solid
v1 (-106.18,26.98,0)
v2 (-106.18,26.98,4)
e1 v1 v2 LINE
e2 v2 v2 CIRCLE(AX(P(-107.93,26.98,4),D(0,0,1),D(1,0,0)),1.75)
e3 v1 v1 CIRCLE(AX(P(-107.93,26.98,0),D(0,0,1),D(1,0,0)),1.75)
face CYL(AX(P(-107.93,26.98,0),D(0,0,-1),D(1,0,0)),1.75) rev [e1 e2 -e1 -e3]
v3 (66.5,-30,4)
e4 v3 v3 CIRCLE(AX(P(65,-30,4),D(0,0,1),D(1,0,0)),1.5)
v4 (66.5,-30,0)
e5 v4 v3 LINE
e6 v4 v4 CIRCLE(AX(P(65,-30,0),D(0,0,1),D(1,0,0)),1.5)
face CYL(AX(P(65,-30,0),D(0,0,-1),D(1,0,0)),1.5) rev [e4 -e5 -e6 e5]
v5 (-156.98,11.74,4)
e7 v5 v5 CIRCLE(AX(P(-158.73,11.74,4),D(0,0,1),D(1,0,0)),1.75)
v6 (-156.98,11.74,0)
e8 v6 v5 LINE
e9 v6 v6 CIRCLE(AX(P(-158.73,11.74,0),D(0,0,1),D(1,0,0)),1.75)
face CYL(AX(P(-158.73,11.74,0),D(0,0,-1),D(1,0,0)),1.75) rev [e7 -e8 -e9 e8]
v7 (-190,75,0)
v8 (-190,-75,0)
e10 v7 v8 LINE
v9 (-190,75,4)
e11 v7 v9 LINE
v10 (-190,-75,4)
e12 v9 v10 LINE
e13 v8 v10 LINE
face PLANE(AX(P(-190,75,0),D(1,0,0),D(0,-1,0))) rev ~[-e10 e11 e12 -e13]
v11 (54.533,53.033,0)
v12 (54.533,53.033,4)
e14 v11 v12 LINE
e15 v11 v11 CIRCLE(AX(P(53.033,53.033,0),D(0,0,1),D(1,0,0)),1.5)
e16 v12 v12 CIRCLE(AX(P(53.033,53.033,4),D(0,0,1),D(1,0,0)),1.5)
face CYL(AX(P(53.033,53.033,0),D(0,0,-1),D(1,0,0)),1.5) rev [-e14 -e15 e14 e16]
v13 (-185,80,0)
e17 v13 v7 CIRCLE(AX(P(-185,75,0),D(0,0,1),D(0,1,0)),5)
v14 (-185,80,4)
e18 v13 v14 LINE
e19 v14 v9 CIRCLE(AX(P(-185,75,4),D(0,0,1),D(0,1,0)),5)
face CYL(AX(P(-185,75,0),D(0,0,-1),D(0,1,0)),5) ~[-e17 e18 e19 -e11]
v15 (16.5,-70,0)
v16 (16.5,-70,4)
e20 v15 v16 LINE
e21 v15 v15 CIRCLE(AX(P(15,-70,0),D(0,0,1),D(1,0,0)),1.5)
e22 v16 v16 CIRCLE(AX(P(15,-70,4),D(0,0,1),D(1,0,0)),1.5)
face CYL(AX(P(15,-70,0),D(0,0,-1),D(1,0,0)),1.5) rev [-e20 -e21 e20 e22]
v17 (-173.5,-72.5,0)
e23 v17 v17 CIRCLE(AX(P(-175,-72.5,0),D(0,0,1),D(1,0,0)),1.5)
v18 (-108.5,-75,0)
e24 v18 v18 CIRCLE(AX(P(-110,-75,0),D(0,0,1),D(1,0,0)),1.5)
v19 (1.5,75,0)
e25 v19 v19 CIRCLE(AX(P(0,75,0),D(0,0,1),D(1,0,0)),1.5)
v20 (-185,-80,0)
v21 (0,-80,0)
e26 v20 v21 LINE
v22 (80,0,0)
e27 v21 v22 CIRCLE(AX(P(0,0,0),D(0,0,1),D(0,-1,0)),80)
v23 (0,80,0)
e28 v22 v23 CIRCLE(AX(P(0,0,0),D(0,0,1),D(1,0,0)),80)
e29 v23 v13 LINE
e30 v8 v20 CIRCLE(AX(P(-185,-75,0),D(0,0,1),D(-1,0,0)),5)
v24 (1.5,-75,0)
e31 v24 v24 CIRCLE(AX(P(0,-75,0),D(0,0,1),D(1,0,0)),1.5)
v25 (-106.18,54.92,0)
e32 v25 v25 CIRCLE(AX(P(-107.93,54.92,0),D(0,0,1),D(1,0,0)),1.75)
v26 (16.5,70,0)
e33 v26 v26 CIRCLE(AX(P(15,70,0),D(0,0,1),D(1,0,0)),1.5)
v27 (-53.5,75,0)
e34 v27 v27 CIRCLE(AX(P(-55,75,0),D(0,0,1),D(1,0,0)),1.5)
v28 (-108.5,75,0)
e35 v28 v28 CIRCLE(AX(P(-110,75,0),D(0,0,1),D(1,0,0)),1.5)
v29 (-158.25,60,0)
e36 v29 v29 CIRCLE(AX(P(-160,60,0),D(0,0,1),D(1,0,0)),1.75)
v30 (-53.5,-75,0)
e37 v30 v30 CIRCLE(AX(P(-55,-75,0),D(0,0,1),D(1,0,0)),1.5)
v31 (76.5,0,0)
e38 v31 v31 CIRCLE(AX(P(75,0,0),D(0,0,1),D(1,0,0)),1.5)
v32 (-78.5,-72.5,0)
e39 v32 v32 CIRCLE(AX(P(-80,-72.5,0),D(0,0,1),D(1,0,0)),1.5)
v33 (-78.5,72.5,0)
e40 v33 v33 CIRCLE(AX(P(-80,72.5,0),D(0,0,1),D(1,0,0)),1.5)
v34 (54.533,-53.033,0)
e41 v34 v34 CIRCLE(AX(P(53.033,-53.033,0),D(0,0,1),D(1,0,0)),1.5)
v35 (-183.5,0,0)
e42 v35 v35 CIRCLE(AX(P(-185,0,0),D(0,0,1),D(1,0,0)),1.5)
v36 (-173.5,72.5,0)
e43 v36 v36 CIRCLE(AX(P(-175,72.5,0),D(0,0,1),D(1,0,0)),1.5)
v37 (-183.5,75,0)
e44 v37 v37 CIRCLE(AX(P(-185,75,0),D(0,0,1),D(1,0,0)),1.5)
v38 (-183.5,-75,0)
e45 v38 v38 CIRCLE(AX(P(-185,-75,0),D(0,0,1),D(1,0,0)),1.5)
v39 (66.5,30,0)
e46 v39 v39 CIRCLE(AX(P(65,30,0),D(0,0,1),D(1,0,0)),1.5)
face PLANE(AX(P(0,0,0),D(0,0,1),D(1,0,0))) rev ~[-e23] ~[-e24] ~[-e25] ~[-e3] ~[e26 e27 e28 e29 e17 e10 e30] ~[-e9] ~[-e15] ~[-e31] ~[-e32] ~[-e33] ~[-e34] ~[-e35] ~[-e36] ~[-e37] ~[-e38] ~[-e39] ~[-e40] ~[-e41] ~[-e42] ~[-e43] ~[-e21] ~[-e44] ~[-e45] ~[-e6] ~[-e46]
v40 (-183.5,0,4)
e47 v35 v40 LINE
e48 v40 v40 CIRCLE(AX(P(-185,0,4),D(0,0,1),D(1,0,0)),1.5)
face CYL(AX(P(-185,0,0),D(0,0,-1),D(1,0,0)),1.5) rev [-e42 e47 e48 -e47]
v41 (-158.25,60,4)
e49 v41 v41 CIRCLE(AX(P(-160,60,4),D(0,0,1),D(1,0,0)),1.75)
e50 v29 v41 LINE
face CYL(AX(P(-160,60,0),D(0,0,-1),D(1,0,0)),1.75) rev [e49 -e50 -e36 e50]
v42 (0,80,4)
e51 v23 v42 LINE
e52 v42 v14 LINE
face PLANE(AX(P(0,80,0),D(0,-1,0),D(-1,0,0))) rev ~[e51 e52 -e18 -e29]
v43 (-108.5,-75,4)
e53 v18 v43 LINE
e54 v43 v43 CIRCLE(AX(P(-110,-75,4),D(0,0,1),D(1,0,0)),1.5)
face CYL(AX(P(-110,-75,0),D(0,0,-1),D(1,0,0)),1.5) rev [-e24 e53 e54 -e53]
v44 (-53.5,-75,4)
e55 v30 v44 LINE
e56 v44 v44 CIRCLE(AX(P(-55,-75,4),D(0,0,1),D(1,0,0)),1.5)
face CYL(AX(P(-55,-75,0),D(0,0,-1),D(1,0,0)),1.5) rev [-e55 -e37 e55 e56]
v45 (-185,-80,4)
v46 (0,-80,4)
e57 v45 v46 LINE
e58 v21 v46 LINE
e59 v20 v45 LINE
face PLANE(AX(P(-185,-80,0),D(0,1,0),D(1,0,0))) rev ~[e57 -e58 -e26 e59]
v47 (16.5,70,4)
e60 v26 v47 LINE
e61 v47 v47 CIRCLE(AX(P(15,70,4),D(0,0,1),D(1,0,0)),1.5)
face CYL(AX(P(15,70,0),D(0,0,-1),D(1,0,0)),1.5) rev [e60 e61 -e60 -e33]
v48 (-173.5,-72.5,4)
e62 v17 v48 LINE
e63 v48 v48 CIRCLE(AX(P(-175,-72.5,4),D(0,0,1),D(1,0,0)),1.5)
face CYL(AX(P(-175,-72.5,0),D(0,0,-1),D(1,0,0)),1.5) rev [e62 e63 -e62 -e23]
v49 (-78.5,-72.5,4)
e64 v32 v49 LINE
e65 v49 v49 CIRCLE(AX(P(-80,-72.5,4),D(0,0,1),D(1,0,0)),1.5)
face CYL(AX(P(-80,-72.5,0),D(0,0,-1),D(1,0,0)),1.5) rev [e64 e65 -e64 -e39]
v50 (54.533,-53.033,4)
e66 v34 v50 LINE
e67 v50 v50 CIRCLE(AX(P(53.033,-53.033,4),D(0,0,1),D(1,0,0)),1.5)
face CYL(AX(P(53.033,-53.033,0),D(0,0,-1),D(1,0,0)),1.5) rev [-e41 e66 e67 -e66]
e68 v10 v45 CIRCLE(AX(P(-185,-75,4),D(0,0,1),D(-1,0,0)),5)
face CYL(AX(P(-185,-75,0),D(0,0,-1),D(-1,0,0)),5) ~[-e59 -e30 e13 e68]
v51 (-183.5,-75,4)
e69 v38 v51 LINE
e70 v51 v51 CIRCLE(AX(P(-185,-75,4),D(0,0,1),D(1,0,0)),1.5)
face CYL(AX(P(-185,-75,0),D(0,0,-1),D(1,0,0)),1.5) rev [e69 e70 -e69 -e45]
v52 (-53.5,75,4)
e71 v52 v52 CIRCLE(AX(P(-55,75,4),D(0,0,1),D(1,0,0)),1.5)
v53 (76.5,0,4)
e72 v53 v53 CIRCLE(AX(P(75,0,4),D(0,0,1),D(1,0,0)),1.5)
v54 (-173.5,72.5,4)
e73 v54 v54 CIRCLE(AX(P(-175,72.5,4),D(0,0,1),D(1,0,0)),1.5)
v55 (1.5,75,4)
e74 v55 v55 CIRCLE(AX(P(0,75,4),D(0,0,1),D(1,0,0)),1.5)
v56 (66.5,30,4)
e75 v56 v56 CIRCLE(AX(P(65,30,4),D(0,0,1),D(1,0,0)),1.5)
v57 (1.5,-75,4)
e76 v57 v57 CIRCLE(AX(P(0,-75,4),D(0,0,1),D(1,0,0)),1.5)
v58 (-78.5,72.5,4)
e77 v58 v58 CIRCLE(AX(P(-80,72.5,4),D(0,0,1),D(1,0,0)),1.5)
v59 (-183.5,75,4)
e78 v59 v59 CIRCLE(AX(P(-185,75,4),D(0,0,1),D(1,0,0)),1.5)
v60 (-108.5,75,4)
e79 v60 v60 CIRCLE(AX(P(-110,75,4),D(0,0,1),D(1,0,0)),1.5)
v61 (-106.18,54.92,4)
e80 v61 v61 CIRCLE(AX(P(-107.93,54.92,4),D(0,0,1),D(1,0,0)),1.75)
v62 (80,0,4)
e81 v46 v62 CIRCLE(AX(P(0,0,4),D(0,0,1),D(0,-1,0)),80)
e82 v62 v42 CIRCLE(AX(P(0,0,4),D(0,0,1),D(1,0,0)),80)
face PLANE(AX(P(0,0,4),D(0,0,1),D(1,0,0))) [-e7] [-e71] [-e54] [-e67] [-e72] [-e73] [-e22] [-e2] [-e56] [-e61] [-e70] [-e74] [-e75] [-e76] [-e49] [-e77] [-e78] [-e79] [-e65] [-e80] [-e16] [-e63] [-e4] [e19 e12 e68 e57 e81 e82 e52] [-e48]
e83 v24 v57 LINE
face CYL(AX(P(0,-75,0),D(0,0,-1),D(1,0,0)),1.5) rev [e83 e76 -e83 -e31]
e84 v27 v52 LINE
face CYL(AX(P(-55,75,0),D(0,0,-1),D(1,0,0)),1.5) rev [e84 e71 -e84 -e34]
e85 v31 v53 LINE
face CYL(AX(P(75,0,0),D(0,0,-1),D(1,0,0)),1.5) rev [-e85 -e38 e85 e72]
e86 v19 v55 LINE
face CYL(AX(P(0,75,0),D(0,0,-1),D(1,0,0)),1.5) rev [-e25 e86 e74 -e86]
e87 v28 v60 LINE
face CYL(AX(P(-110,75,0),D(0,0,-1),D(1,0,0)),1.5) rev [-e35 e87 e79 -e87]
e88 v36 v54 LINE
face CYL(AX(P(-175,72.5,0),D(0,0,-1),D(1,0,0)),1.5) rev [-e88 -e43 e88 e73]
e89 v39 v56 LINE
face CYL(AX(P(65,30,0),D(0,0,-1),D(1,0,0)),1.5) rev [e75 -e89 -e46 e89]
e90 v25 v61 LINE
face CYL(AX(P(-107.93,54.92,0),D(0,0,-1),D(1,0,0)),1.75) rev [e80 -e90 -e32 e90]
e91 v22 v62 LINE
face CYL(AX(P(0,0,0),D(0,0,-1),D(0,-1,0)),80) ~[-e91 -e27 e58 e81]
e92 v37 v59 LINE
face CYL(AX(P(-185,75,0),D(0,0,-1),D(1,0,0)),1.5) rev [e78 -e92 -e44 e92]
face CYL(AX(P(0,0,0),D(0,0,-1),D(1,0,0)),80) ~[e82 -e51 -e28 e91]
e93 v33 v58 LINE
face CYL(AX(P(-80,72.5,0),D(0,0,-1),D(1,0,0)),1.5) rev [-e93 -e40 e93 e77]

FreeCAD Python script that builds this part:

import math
import FreeCAD as App
import Part
import Sketcher

V = App.Vector

doc = App.newDocument("Part")
body = doc.addObject("PartDesign::Body", "Body")

sketch1 = doc.addObject("Sketcher::SketchObject", "Sketch")
body.addObject(sketch1)
sketch1.AttachmentSupport = (doc.XY_Plane, [""])
sketch1.MapMode = "FlatFace"
sketch1.addGeometry(Part.ArcOfCircle(Part.Circle(V(-185, -75, 0), V(0, 0, 1), 5), math.radians(180), math.radians(270)), False)
sketch1.addGeometry(Part.LineSegment(V(-185, -80, 0), V(0, -80, 0)), False)
sketch1.addGeometry(Part.ArcOfCircle(Part.Circle(V(0, 0, 0), V(0, 0, 1), 80), math.radians(-90), math.radians(90)), False)
sketch1.addGeometry(Part.LineSegment(V(0, 80, 0), V(-185, 80, 0)), False)
sketch1.addGeometry(Part.ArcOfCircle(Part.Circle(V(-185, 75, 0), V(0, 0, 1), 5), math.radians(90), math.radians(180)), False)
sketch1.addGeometry(Part.LineSegment(V(-190, 75, 0), V(-190, -75, 0)), False)
sketch1.addGeometry(Part.Circle(V(-185, -75, 0), V(0, 0, 1), 1.5), False)
sketch1.addGeometry(Part.Circle(V(-175, -72.5, 0), V(0, 0, 1), 1.5), False)
sketch1.addGeometry(Part.Circle(V(-110, -75, 0), V(0, 0, 1), 1.5), False)
sketch1.addGeometry(Part.Circle(V(-80, -72.5, 0), V(0, 0, 1), 1.5), False)
sketch1.addGeometry(Part.Circle(V(-55, -75, 0), V(0, 0, 1), 1.5), False)
sketch1.addGeometry(Part.Circle(V(0, -75, 0), V(0, 0, 1), 1.5), False)
sketch1.addGeometry(Part.Circle(V(15, -70, 0), V(0, 0, 1), 1.5), False)
sketch1.addGeometry(Part.Circle(V(53.033, -53.033, 0), V(0, 0, 1), 1.5), False)
sketch1.addGeometry(Part.Circle(V(65, -30, 0), V(0, 0, 1), 1.5), False)
sketch1.addGeometry(Part.Circle(V(-185, 0, 0), V(0, 0, 1), 1.5), False)
sketch1.addGeometry(Part.Circle(V(-158.73, 11.74, 0), V(0, 0, 1), 1.75), False)
sketch1.addGeometry(Part.Circle(V(-107.93, 26.98, 0), V(0, 0, 1), 1.75), False)
sketch1.addGeometry(Part.Circle(V(-160, 60, 0), V(0, 0, 1), 1.75), False)
sketch1.addGeometry(Part.Circle(V(-175, 72.5, 0), V(0, 0, 1), 1.5), False)
sketch1.addGeometry(Part.Circle(V(-185, 75, 0), V(0, 0, 1), 1.5), False)
sketch1.addGeometry(Part.Circle(V(-107.93, 54.92, 0), V(0, 0, 1), 1.75), False)
sketch1.addGeometry(Part.Circle(V(-110, 75, 0), V(0, 0, 1), 1.5), False)
sketch1.addGeometry(Part.Circle(V(-80, 72.5, 0), V(0, 0, 1), 1.5), False)
sketch1.addGeometry(Part.Circle(V(75, 0, 0), V(0, 0, 1), 1.5), False)
sketch1.addGeometry(Part.Circle(V(65, 30, 0), V(0, 0, 1), 1.5), False)
sketch1.addGeometry(Part.Circle(V(-55, 75, 0), V(0, 0, 1), 1.5), False)
sketch1.addGeometry(Part.Circle(V(0, 75, 0), V(0, 0, 1), 1.5), False)
sketch1.addGeometry(Part.Circle(V(53.033, 53.033, 0), V(0, 0, 1), 1.5), False)
sketch1.addGeometry(Part.Circle(V(15, 70, 0), V(0, 0, 1), 1.5), False)
sketch1.addConstraint(Sketcher.Constraint("Tangent", 0, 2, 1, 1))
sketch1.addConstraint(Sketcher.Constraint("Tangent", 1, 2, 2, 1))
sketch1.addConstraint(Sketcher.Constraint("Tangent", 2, 2, 3, 1))
sketch1.addConstraint(Sketcher.Constraint("Tangent", 3, 2, 4, 1))
sketch1.addConstraint(Sketcher.Constraint("Tangent", 4, 2, 5, 1))
sketch1.addConstraint(Sketcher.Constraint("Tangent", 5, 2, 0, 1))
sketch1.addConstraint(Sketcher.Constraint("Horizontal", 1))
sketch1.addConstraint(Sketcher.Constraint("Horizontal", 3))
sketch1.addConstraint(Sketcher.Constraint("Vertical", 5))
sketch1.addConstraint(Sketcher.Constraint("Coincident", 2, 3, -1, 1))
sketch1.addConstraint(Sketcher.Constraint("Coincident", 6, 3, 0, 3))
sketch1.addConstraint(Sketcher.Constraint("Coincident", 20, 3, 4, 3))
sketch1.addConstraint(Sketcher.Constraint("Equal", 0, 4))
sketch1.addConstraint(Sketcher.Constraint("Equal", 6, 7))
sketch1.addConstraint(Sketcher.Constraint("Equal", 7, 8))
sketch1.addConstraint(Sketcher.Constraint("Equal", 8, 9))
sketch1.addConstraint(Sketcher.Constraint("Equal", 9, 10))
sketch1.addConstraint(Sketcher.Constraint("Equal", 10, 11))
sketch1.addConstraint(Sketcher.Constraint("Equal", 11, 12))
sketch1.addConstraint(Sketcher.Constraint("Equal", 12, 13))
sketch1.addConstraint(Sketcher.Constraint("Equal", 13, 14))
sketch1.addConstraint(Sketcher.Constraint("Equal", 14, 15))
sketch1.addConstraint(Sketcher.Constraint("Equal", 16, 17))
sketch1.addConstraint(Sketcher.Constraint("Equal", 17, 18))
sketch1.addConstraint(Sketcher.Constraint("Equal", 15, 19))
sketch1.addConstraint(Sketcher.Constraint("Equal", 19, 20))
sketch1.addConstraint(Sketcher.Constraint("Equal", 18, 21))
sketch1.addConstraint(Sketcher.Constraint("Equal", 20, 22))
sketch1.addConstraint(Sketcher.Constraint("Equal", 22, 23))
sketch1.addConstraint(Sketcher.Constraint("Equal", 23, 24))
sketch1.addConstraint(Sketcher.Constraint("Equal", 24, 25))
sketch1.addConstraint(Sketcher.Constraint("Equal", 25, 26))
sketch1.addConstraint(Sketcher.Constraint("Equal", 26, 27))
sketch1.addConstraint(Sketcher.Constraint("Equal", 27, 28))
sketch1.addConstraint(Sketcher.Constraint("Equal", 28, 29))
sketch1.addConstraint(Sketcher.Constraint("Symmetric", 11, 3, 27, 3, -1, 1))
sketch1.addConstraint(Sketcher.Constraint("Symmetric", 7, 3, 19, 3, -1))
sketch1.addConstraint(Sketcher.Constraint("Symmetric", 8, 3, 22, 3, -1))
sketch1.addConstraint(Sketcher.Constraint("Symmetric", 9, 3, 23, 3, -1))
sketch1.addConstraint(Sketcher.Constraint("Symmetric", 14, 3, 25, 3, -1))
sketch1.addConstraint(Sketcher.Constraint("Symmetric", 10, 3, 26, 3, -1))
sketch1.addConstraint(Sketcher.Constraint("Symmetric", 13, 3, 28, 3, -1))
sketch1.addConstraint(Sketcher.Constraint("Symmetric", 12, 3, 29, 3, -1))
sketch1.addConstraint(Sketcher.Constraint("PointOnObject", 11, 3, -2))
sketch1.addConstraint(Sketcher.Constraint("PointOnObject", 15, 3, -1))
sketch1.addConstraint(Sketcher.Constraint("PointOnObject", 24, 3, -1))
sketch1.addConstraint(Sketcher.Constraint("Horizontal", 6, 3, 8, 3))
sketch1.addConstraint(Sketcher.Constraint("Horizontal", 7, 3, 9, 3))
sketch1.addConstraint(Sketcher.Constraint("Horizontal", 8, 3, 10, 3))
sketch1.addConstraint(Sketcher.Constraint("Horizontal", 10, 3, 11, 3))
sketch1.addConstraint(Sketcher.Constraint("Vertical", 6, 3, 15, 3))
sketch1.addConstraint(Sketcher.Constraint("Vertical", 17, 3, 21, 3))
sketch1.addConstraint(Sketcher.Constraint("Diameter", 6, 3.0))
sketch1.addConstraint(Sketcher.Constraint("Radius", 0, 5.0))
sketch1.addConstraint(Sketcher.Constraint("Radius", 2, 80.0))
sketch1.addConstraint(Sketcher.Constraint("Diameter", 16, 3.5))
sketch1.addConstraint(Sketcher.Constraint("DistanceX", 8, 3, -1, 1, 110.0))
sketch1.addConstraint(Sketcher.Constraint("DistanceX", 9, 3, -1, 1, 80.0))
sketch1.addConstraint(Sketcher.Constraint("DistanceX", 10, 3, -1, 1, 55.0))
sketch1.addConstraint(Sketcher.Constraint("DistanceX", -1, 1, 12, 3, 15.0))
sketch1.addConstraint(Sketcher.Constraint("DistanceY", 12, 3, -1, 1, 70.0))
sketch1.addConstraint(Sketcher.Constraint("DistanceX", -1, 1, 14, 3, 65.0))
sketch1.addConstraint(Sketcher.Constraint("DistanceY", 14, 3, -1, 1, 30.0))
sketch1.addConstraint(Sketcher.Constraint("DistanceX", 18, 3, -1, 1, 160.0))
sketch1.addConstraint(Sketcher.Constraint("DistanceX", -1, 1, 24, 3, 75.0))
sketch1.addConstraint(Sketcher.Constraint("DistanceX", 4, 2, -1, 1, 190.0))
sketch1.addConstraint(Sketcher.Constraint("DistanceX", 7, 3, 8, 3, 65.0))
sketch1.addConstraint(Sketcher.Constraint("DistanceY", 18, 3, 4, 3, 15.0))
sketch1.addConstraint(Sketcher.Constraint("DistanceY", 7, 3, -1, 1, 72.5))
sketch1.addConstraint(Sketcher.Constraint("DistanceX", 17, 3, -1, 1, 107.93))
sketch1.addConstraint(Sketcher.Constraint("DistanceY", 16, 3, 3, 2, 68.26))
sketch1.addConstraint(Sketcher.Constraint("DistanceX", -1, 1, 13, 3, 53.033))
sketch1.addConstraint(Sketcher.Constraint("DistanceY", 13, 3, -1, 1, 53.033))
sketch1.addConstraint(Sketcher.Constraint("DistanceX", 16, 3, 17, 3, 50.8))
sketch1.addConstraint(Sketcher.Constraint("DistanceY", -1, 1, 17, 3, 26.98))
sketch1.addConstraint(Sketcher.Constraint("DistanceY", -1, 1, 21, 3, 54.92))
pad1 = doc.addObject("PartDesign::Pad", "Pad")
body.addObject(pad1)
pad1.Profile = sketch1
pad1.Length = 4

doc.recompute()
